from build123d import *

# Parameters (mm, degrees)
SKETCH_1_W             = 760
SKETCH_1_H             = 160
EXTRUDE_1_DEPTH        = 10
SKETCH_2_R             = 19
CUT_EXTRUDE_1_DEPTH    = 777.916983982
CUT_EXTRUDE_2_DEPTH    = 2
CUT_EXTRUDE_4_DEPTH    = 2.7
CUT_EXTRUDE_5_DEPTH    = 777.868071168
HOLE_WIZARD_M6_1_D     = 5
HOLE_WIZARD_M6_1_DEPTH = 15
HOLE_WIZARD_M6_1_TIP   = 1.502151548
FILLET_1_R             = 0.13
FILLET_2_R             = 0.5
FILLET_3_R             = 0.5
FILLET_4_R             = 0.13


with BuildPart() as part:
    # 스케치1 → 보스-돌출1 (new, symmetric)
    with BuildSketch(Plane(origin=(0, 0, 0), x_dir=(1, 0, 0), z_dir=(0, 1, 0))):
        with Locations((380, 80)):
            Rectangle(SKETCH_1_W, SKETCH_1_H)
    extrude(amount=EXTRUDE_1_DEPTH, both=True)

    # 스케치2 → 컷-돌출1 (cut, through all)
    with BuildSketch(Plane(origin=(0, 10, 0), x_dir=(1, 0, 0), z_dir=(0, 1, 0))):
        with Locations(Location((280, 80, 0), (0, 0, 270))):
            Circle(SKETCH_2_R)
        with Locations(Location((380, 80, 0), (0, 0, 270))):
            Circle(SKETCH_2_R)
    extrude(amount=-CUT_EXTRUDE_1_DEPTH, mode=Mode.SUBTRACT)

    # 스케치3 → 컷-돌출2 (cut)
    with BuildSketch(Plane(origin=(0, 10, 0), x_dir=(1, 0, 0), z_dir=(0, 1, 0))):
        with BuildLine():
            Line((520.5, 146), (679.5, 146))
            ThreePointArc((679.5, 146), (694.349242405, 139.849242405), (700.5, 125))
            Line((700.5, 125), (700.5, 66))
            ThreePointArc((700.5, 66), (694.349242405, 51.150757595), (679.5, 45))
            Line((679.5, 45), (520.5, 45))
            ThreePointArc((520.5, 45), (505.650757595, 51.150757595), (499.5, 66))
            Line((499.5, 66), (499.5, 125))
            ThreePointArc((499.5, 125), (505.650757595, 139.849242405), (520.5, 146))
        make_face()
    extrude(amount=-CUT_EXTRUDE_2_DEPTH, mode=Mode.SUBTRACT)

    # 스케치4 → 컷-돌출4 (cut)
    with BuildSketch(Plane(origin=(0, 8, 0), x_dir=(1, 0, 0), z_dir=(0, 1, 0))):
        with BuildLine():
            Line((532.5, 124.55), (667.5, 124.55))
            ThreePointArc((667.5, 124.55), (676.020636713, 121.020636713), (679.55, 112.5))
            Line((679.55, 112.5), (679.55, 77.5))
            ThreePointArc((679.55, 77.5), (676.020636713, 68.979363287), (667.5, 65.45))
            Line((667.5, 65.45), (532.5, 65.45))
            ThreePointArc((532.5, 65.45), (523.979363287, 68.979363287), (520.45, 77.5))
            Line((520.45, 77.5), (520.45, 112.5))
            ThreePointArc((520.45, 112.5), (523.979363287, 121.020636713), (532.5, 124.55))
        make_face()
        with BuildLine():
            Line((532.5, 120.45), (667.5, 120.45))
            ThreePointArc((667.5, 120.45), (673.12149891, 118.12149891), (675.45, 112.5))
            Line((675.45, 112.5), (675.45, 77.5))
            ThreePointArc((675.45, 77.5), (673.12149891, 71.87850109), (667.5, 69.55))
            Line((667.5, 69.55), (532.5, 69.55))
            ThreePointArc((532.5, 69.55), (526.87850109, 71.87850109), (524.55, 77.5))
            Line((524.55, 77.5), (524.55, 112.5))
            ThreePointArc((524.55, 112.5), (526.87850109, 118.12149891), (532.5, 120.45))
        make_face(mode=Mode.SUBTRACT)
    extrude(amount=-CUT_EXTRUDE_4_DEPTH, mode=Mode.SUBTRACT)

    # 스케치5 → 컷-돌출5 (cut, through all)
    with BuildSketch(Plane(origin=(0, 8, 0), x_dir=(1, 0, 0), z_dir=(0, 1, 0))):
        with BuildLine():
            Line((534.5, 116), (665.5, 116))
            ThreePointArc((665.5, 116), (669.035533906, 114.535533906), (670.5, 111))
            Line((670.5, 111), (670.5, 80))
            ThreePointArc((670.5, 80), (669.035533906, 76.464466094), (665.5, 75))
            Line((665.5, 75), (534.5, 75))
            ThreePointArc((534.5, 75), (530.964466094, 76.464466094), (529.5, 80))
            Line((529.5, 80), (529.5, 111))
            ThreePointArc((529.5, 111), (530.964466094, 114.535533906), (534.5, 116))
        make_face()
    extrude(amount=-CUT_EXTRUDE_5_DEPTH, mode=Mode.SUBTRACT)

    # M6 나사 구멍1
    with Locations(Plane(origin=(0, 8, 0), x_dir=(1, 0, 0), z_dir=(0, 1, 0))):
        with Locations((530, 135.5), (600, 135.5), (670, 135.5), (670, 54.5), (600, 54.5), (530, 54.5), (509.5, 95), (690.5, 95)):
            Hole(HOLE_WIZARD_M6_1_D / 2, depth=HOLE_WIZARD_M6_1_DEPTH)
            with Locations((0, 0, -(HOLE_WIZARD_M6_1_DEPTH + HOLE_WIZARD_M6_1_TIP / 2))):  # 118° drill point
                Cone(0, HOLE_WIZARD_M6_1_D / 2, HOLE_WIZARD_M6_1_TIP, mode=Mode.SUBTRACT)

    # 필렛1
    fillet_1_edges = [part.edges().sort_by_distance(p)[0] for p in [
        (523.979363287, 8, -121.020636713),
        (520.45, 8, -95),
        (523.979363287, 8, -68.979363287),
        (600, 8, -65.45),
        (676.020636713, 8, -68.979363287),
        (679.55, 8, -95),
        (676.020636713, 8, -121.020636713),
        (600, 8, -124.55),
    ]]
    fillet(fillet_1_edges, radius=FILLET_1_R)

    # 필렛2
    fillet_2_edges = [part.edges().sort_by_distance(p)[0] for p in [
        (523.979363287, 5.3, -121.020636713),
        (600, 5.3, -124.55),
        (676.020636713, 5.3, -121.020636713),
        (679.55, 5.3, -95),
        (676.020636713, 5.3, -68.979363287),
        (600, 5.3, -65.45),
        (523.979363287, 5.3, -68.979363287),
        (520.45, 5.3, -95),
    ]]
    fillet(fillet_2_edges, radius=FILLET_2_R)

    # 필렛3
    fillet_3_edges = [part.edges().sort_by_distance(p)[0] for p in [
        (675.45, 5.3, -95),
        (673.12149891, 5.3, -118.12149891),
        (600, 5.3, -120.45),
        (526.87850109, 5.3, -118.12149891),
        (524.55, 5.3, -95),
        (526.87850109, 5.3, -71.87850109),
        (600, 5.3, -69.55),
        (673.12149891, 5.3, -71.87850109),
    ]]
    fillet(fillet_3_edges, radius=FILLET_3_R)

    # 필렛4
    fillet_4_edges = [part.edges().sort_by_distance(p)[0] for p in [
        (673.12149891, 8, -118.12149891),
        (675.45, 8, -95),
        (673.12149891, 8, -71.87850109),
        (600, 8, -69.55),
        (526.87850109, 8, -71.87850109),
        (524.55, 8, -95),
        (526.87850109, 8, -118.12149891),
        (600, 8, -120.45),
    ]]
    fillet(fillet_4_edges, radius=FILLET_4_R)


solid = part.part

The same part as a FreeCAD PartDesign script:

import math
import FreeCAD as App
import Part
import Sketcher

V = App.Vector
Q = App.Units.Quantity


def edges_at(feature, points):
    """Names of the edges that pass closest to the given points."""
    edges = feature.Shape.Edges
    near = lambda p: min(range(len(edges)), key=lambda i: edges[i].distToShape(Part.Vertex(*p))[0])
    return sorted({f"Edge{near(p) + 1}" for p in points})


def add_polygon(sketch, points):
    """Adds a closed chain of lines whose ends are joined by coincident constraints."""
    first, n = sketch.GeometryCount, len(points)
    for a, b in zip(points, points[1:] + points[:1]):
        sketch.addGeometry(Part.LineSegment(App.Vector(*a, 0), App.Vector(*b, 0)), False)
    for i in range(n):
        sketch.addConstraint(Sketcher.Constraint("Coincident", first + i, 2, first + (i + 1) % n, 1))

doc = App.newDocument("Part")
body = doc.addObject("PartDesign::Body", "Body")

sketch1 = body.newObject("Sketcher::SketchObject", "Sketch")
sketch1.AttachmentSupport = (doc.getObject("XZ_Plane"), [""])
sketch1.MapMode = "FlatFace"
add_polygon(sketch1, [(0, -160), (0, 0), (760, 0), (760, -160)])
sketch1.addConstraint([
    Sketcher.Constraint("Vertical", 0),
    Sketcher.Constraint("Horizontal", 1),
    Sketcher.Constraint("Vertical", 2),
    Sketcher.Constraint("Horizontal", 3),
    Sketcher.Constraint("Coincident", 0, 2, -1, 1),
    Sketcher.Constraint("DistanceX", 1, 1, 1, 2, Q("760 mm")),
    Sketcher.Constraint("DistanceY", 0, 1, 0, 2, Q("160 mm")),
])
pad1 = body.newObject("PartDesign::Pad", "Pad")
pad1.Profile = sketch1
pad1.Length = 20
pad1.Midplane = True

sketch2 = body.newObject("Sketcher::SketchObject", "Sketch001")
sketch2.AttachmentSupport = (doc.getObject("XZ_Plane"), [""])
sketch2.MapMode = "FlatFace"
sketch2.AttachmentOffset = App.Placement(V(0, 0, -10), App.Rotation())
sketch2.addGeometry([
    Part.Circle(V(280, -80, 0), V(0, 0, 1), 19),
    Part.Circle(V(380, -80, 0), V(0, 0, 1), 19),
], False)
sketch2.addConstraint([
    Sketcher.Constraint("Equal", 0, 1),
    Sketcher.Constraint("Horizontal", 0, 3, 1, 3),
    Sketcher.Constraint("Diameter", 0, Q("38 mm")),
    Sketcher.Constraint("DistanceX", -1, 1, 0, 3, Q("280 mm")),
    Sketcher.Constraint("DistanceY", 0, 3, -1, 1, Q("80 mm")),
    Sketcher.Constraint("DistanceX", -1, 1, 1, 3, Q("380 mm")),
])
pocket1 = body.newObject("PartDesign::Pocket", "Pocket")
pocket1.Profile = sketch2
pocket1.Type = "ThroughAll"
pocket1.Reversed = True

sketch3 = body.newObject("Sketcher::SketchObject", "Sketch002")
sketch3.AttachmentSupport = (doc.getObject("XZ_Plane"), [""])
sketch3.MapMode = "FlatFace"
sketch3.AttachmentOffset = App.Placement(V(0, 0, -10), App.Rotation())
sketch3.addGeometry([
    Part.LineSegment(V(680, -146, 0), V(520, -146, 0)),
    Part.ArcOfCircle(Part.Circle(V(520, -125, 0), V(0, 0, 1), 21), math.radians(180), math.radians(270)),
    Part.LineSegment(V(500, -125, 0), V(500, -66, 0)),
    Part.ArcOfCircle(Part.Circle(V(520, -66, 0), V(0, 0, 1), 21), math.radians(90), math.radians(180)),
    Part.LineSegment(V(520, -45, 0), V(680, -45, 0)),
    Part.ArcOfCircle(Part.Circle(V(680, -66, 0), V(0, 0, 1), 21), math.radians(0), math.radians(90)),
    Part.LineSegment(V(700, -66, 0), V(700, -125, 0)),
    Part.ArcOfCircle(Part.Circle(V(680, -125, 0), V(0, 0, 1), 21), math.radians(-90), math.radians(0)),
], False)
sketch3.addConstraint([
    Sketcher.Constraint("Tangent", 0, 2, 1, 2),
    Sketcher.Constraint("Tangent", 1, 1, 2, 1),
    Sketcher.Constraint("Tangent", 2, 2, 3, 2),
    Sketcher.Constraint("Tangent", 3, 1, 4, 1),
    Sketcher.Constraint("Tangent", 4, 2, 5, 2),
    Sketcher.Constraint("Tangent", 5, 1, 6, 1),
    Sketcher.Constraint("Tangent", 6, 2, 7, 2),
    Sketcher.Constraint("Tangent", 7, 1, 0, 1),
    Sketcher.Constraint("Horizontal", 0),
    Sketcher.Constraint("Vertical", 2),
    Sketcher.Constraint("Horizontal", 4),
    Sketcher.Constraint("Vertical", 6),
    Sketcher.Constraint("Equal", 1, 3),
    Sketcher.Constraint("Equal", 3, 5),
    Sketcher.Constraint("Equal", 5, 7),
    Sketcher.Constraint("Radius", 1, Q("21 mm")),
    Sketcher.Constraint("DistanceX", 0, 2, 0, 1, Q("159 mm")),
    Sketcher.Constraint("DistanceY", 2, 1, 2, 2, Q("59 mm")),
    Sketcher.Constraint("DistanceY", 1, 3, -1, 1, Q("125 mm")),
    Sketcher.Constraint("DistanceX", -1, 1, 1, 3, Q("520.5 mm")),
])
pocket2 = body.newObject("PartDesign::Pocket", "Pocket001")
pocket2.Profile = sketch3
pocket2.Length = 2
pocket2.Reversed = True

sketch4 = body.newObject("Sketcher::SketchObject", "Sketch003")
sketch4.AttachmentSupport = (doc.getObject("XZ_Plane"), [""])
sketch4.MapMode = "FlatFace"
sketch4.AttachmentOffset = App.Placement(V(0, 0, -8), App.Rotation())
sketch4.addGeometry([
    Part.LineSegment(V(668, -125, 0), V(532, -125, 0)),
    Part.ArcOfCircle(Part.Circle(V(533, -112, 0), V(0, 0, 1), 12), math.radians(-180), math.radians(-90)),
    Part.LineSegment(V(520, -112, 0), V(520, -78, 0)),
    Part.ArcOfCircle(Part.Circle(V(533, -78, 0), V(0, 0, 1), 12), math.radians(90), math.radians(180)),
    Part.LineSegment(V(532, -65, 0), V(668, -65, 0)),
    Part.ArcOfCircle(Part.Circle(V(667, -78, 0), V(0, 0, 1), 12), math.radians(0), math.radians(90)),
    Part.LineSegment(V(680, -78, 0), V(680, -112, 0)),
    Part.ArcOfCircle(Part.Circle(V(667, -112, 0), V(0, 0, 1), 12), math.radians(-90), math.radians(0)),
    Part.LineSegment(V(532, -120, 0), V(668, -120, 0)),
    Part.ArcOfCircle(Part.Circle(V(667, -112, 0), V(0, 0, 1), 8), math.radians(-90), math.radians(0)),
    Part.LineSegment(V(675, -112, 0), V(675, -78, 0)),
    Part.ArcOfCircle(Part.Circle(V(667, -78, 0), V(0, 0, 1), 8), math.radians(0), math.radians(90)),
    Part.LineSegment(V(668, -70, 0), V(532, -70, 0)),
    Part.ArcOfCircle(Part.Circle(V(533, -78, 0), V(0, 0, 1), 8), math.radians(90), math.radians(180)),
    Part.LineSegment(V(525, -78, 0), V(525, -112, 0)),
    Part.ArcOfCircle(Part.Circle(V(533, -112, 0), V(0, 0, 1), 8), math.radians(-180), math.radians(-90)),
], False)
sketch4.addConstraint([
    Sketcher.Constraint("Tangent", 0, 2, 1, 2),
    Sketcher.Constraint("Tangent", 1, 1, 2, 1),
    Sketcher.Constraint("Tangent", 2, 2, 3, 2),
    Sketcher.Constraint("Tangent", 3, 1, 4, 1),
    Sketcher.Constraint("Tangent", 4, 2, 5, 2),
    Sketcher.Constraint("Tangent", 5, 1, 6, 1),
    Sketcher.Constraint("Tangent", 6, 2, 7, 2),
    Sketcher.Constraint("Tangent", 7, 1, 0, 1),
    Sketcher.Constraint("Tangent", 8, 2, 9, 1),
    Sketcher.Constraint("Tangent", 9, 2, 10, 1),
    Sketcher.Constraint("Tangent", 10, 2, 11, 1),
    Sketcher.Constraint("Tangent", 11, 2, 12, 1),
    Sketcher.Constraint("Tangent", 12, 2, 13, 1),
    Sketcher.Constraint("Tangent", 13, 2, 14, 1),
    Sketcher.Constraint("Tangent", 14, 2, 15, 1),
    Sketcher.Constraint("Tangent", 15, 2, 8, 1),
    Sketcher.Constraint("Horizontal", 0),
    Sketcher.Constraint("Vertical", 2),
    Sketcher.Constraint("Horizontal", 4),
    Sketcher.Constraint("Vertical", 6),
    Sketcher.Constraint("Horizontal", 8),
    Sketcher.Constraint("Vertical", 10),
    Sketcher.Constraint("Horizontal", 12),
    Sketcher.Constraint("Vertical", 14),
    Sketcher.Constraint("Coincident", 9, 3, 7, 3),
    Sketcher.Constraint("Coincident", 11, 3, 5, 3),
    Sketcher.Constraint("Coincident", 13, 3, 3, 3),
    Sketcher.Constraint("Equal", 1, 3),
    Sketcher.Constraint("Equal", 3, 5),
    Sketcher.Constraint("Equal", 5, 7),
    Sketcher.Constraint("Equal", 13, 15),
    Sketcher.Constraint("DistanceX", 0, 2, 0, 1, Q("135 mm")),
    Sketcher.Constraint("DistanceY", 2, 1, 2, 2, Q("35 mm")),
    Sketcher.Constraint("Radius", 1, Q("12.05 mm")),
    Sketcher.Constraint("Radius", 9, Q("7.95 mm")),
    Sketcher.Constraint("DistanceX", -1, 1, 1, 3, Q("532.5 mm")),
    Sketcher.Constraint("DistanceY", 1, 3, -1, 1, Q("112.5 mm")),
])
pocket3 = body.newObject("PartDesign::Pocket", "Pocket002")
pocket3.Profile = sketch4
pocket3.Length = 2.7
pocket3.Reversed = True

sketch5 = body.newObject("Sketcher::SketchObject", "Sketch004")
sketch5.AttachmentSupport = (doc.getObject("XZ_Plane"), [""])
sketch5.MapMode = "FlatFace"
sketch5.AttachmentOffset = App.Placement(V(0, 0, -8), App.Rotation())
sketch5.addGeometry([
    Part.LineSegment(V(666, -116, 0), V(534, -116, 0)),
    Part.ArcOfCircle(Part.Circle(V(534, -111, 0), V(0, 0, 1), 5), math.radians(180), math.radians(270)),
    Part.LineSegment(V(530, -111, 0), V(530, -80, 0)),
    Part.ArcOfCircle(Part.Circle(V(534, -80, 0), V(0, 0, 1), 5), math.radians(90), math.radians(180)),
    Part.LineSegment(V(534, -75, 0), V(666, -75, 0)),
    Part.ArcOfCircle(Part.Circle(V(666, -80, 0), V(0, 0, 1), 5), math.radians(0), math.radians(90)),
    Part.LineSegment(V(670, -80, 0), V(670, -111, 0)),
    Part.ArcOfCircle(Part.Circle(V(666, -111, 0), V(0, 0, 1), 5), math.radians(-90), math.radians(0)),
], False)
sketch5.addConstraint([
    Sketcher.Constraint("Tangent", 0, 2, 1, 2),
    Sketcher.Constraint("Tangent", 1, 1, 2, 1),
    Sketcher.Constraint("Tangent", 2, 2, 3, 2),
    Sketcher.Constraint("Tangent", 3, 1, 4, 1),
    Sketcher.Constraint("Tangent", 4, 2, 5, 2),
    Sketcher.Constraint("Tangent", 5, 1, 6, 1),
    Sketcher.Constraint("Tangent", 6, 2, 7, 2),
    Sketcher.Constraint("Tangent", 7, 1, 0, 1),
    Sketcher.Constraint("Horizontal", 0),
    Sketcher.Constraint("Vertical", 2),
    Sketcher.Constraint("Horizontal", 4),
    Sketcher.Constraint("Vertical", 6),
    Sketcher.Constraint("Equal", 1, 3),
    Sketcher.Constraint("Equal", 3, 5),
    Sketcher.Constraint("Equal", 5, 7),
    Sketcher.Constraint("Radius", 1, Q("5 mm")),
    Sketcher.Constraint("DistanceX", 0, 2, 0, 1, Q("131 mm")),
    Sketcher.Constraint("DistanceY", 2, 1, 2, 2, Q("31 mm")),
    Sketcher.Constraint("DistanceY", 1, 3, -1, 1, Q("111 mm")),
    Sketcher.Constraint("DistanceX", -1, 1, 1, 3, Q("534.5 mm")),
])
pocket4 = body.newObject("PartDesign::Pocket", "Pocket003")
pocket4.Profile = sketch5
pocket4.Type = "ThroughAll"
pocket4.Reversed = True

sketch6 = body.newObject("Sketcher::SketchObject", "Sketch005")
sketch6.AttachmentSupport = (doc.getObject("XZ_Plane"), [""])
sketch6.MapMode = "FlatFace"
sketch6.AttachmentOffset = App.Placement(V(0, 0, -8), App.Rotation())
sketch6.addGeometry([
    Part.Circle(V(530, -135.5, 0), V(0, 0, 1), 2.5),
    Part.Circle(V(600, -135.5, 0), V(0, 0, 1), 2.5),
    Part.Circle(V(670, -135.5, 0), V(0, 0, 1), 2.5),
    Part.Circle(V(670, -54.5, 0), V(0, 0, 1), 2.5),
    Part.Circle(V(600, -54.5, 0), V(0, 0, 1), 2.5),
    Part.Circle(V(530, -54.5, 0), V(0, 0, 1), 2.5),
    Part.Circle(V(509.5, -95, 0), V(0, 0, 1), 2.5),
    Part.Circle(V(690.5, -95, 0), V(0, 0, 1), 2.5),
], False)
sketch6.addConstraint([
    Sketcher.Constraint("Equal", 0, 1),
    Sketcher.Constraint("Equal", 1, 2),
    Sketcher.Constraint("Equal", 2, 3),
    Sketcher.Constraint("Equal", 3, 4),
    Sketcher.Constraint("Equal", 4, 5),
    Sketcher.Constraint("Equal", 5, 6),
    Sketcher.Constraint("Equal", 6, 7),
    Sketcher.Constraint("Horizontal", 0, 3, 1, 3),
    Sketcher.Constraint("Horizontal", 1, 3, 2, 3),
    Sketcher.Constraint("Horizontal", 3, 3, 4, 3),
    Sketcher.Constraint("Horizontal", 4, 3, 5, 3),
    Sketcher.Constraint("Horizontal", 6, 3, 7, 3),
    Sketcher.Constraint("Vertical", 2, 3, 3, 3),
    Sketcher.Constraint("Vertical", 1, 3, 4, 3),
    Sketcher.Constraint("Vertical", 0, 3, 5, 3),
    Sketcher.Constraint("Diameter", 0, Q("5 mm")),
    Sketcher.Constraint("DistanceX", -1, 1, 0, 3, Q("530 mm")),
    Sketcher.Constraint("DistanceX", -1, 1, 1, 3, Q("600 mm")),
    Sketcher.Constraint("DistanceX", -1, 1, 2, 3, Q("670 mm")),
    Sketcher.Constraint("DistanceY", 6, 3, -1, 1, Q("95 mm")),
    Sketcher.Constraint("DistanceY", 2, 3, 3, 3, Q("81 mm")),
    Sketcher.Constraint("DistanceY", 0, 3, -1, 1, Q("135.5 mm")),
    Sketcher.Constraint("DistanceX", -1, 1, 6, 3, Q("509.5 mm")),
    Sketcher.Constraint("DistanceX", -1, 1, 7, 3, Q("690.5 mm")),
])
doc.recompute()
hole = body.newObject("PartDesign::Hole", "Hole")
hole.Profile = sketch6
hole.ThreadType = "None"
hole.Diameter = 5
hole.DepthType = "Dimension"
hole.Depth = 15
hole.DrillPoint = "Angled"
hole.DrillPointAngle = 118
hole.Reversed = True
doc.recompute()

fillet = body.newObject("PartDesign::Fillet", "Fillet")
fillet.Base = (hole, edges_at(hole, [
    (523.979, 8, -121.021),
    (520.45, 8, -95),
    (523.979, 8, -68.979),
    (600, 8, -65.45),
    (676.021, 8, -68.979),
    (679.55, 8, -95),
    (676.021, 8, -121.021),
    (600, 8, -124.55),
]))
fillet.Radius = 0.13
doc.recompute()

fillet2 = body.newObject("PartDesign::Fillet", "Fillet001")
fillet2.Base = (fillet, edges_at(fillet, [
    (523.979, 5.3, -121.021),
    (600, 5.3, -124.55),
    (676.021, 5.3, -121.021),
    (679.55, 5.3, -95),
    (676.021, 5.3, -68.979),
    (600, 5.3, -65.45),
    (523.979, 5.3, -68.979),
    (520.45, 5.3, -95),
]))
fillet2.Radius = 0.5
doc.recompute()

fillet3 = body.newObject("PartDesign::Fillet", "Fillet002")
fillet3.Base = (fillet2, edges_at(fillet2, [
    (675.45, 5.3, -95),
    (673.121, 5.3, -118.121),
    (600, 5.3, -120.45),
    (526.879, 5.3, -118.121),
    (524.55, 5.3, -95),
    (526.879, 5.3, -71.879),
    (600, 5.3, -69.55),
    (673.121, 5.3, -71.879),
]))
fillet3.Radius = 0.5
doc.recompute()

fillet4 = body.newObject("PartDesign::Fillet", "Fillet003")
fillet4.Base = (fillet3, edges_at(fillet3, [
    (673.121, 8, -118.121),
    (675.45, 8, -95),
    (673.121, 8, -71.879),
    (600, 8, -69.55),
    (526.879, 8, -71.879),
    (524.55, 8, -95),
    (526.879, 8, -118.121),
    (600, 8, -120.45),
]))
fillet4.Radius = 0.13

doc.recompute()
